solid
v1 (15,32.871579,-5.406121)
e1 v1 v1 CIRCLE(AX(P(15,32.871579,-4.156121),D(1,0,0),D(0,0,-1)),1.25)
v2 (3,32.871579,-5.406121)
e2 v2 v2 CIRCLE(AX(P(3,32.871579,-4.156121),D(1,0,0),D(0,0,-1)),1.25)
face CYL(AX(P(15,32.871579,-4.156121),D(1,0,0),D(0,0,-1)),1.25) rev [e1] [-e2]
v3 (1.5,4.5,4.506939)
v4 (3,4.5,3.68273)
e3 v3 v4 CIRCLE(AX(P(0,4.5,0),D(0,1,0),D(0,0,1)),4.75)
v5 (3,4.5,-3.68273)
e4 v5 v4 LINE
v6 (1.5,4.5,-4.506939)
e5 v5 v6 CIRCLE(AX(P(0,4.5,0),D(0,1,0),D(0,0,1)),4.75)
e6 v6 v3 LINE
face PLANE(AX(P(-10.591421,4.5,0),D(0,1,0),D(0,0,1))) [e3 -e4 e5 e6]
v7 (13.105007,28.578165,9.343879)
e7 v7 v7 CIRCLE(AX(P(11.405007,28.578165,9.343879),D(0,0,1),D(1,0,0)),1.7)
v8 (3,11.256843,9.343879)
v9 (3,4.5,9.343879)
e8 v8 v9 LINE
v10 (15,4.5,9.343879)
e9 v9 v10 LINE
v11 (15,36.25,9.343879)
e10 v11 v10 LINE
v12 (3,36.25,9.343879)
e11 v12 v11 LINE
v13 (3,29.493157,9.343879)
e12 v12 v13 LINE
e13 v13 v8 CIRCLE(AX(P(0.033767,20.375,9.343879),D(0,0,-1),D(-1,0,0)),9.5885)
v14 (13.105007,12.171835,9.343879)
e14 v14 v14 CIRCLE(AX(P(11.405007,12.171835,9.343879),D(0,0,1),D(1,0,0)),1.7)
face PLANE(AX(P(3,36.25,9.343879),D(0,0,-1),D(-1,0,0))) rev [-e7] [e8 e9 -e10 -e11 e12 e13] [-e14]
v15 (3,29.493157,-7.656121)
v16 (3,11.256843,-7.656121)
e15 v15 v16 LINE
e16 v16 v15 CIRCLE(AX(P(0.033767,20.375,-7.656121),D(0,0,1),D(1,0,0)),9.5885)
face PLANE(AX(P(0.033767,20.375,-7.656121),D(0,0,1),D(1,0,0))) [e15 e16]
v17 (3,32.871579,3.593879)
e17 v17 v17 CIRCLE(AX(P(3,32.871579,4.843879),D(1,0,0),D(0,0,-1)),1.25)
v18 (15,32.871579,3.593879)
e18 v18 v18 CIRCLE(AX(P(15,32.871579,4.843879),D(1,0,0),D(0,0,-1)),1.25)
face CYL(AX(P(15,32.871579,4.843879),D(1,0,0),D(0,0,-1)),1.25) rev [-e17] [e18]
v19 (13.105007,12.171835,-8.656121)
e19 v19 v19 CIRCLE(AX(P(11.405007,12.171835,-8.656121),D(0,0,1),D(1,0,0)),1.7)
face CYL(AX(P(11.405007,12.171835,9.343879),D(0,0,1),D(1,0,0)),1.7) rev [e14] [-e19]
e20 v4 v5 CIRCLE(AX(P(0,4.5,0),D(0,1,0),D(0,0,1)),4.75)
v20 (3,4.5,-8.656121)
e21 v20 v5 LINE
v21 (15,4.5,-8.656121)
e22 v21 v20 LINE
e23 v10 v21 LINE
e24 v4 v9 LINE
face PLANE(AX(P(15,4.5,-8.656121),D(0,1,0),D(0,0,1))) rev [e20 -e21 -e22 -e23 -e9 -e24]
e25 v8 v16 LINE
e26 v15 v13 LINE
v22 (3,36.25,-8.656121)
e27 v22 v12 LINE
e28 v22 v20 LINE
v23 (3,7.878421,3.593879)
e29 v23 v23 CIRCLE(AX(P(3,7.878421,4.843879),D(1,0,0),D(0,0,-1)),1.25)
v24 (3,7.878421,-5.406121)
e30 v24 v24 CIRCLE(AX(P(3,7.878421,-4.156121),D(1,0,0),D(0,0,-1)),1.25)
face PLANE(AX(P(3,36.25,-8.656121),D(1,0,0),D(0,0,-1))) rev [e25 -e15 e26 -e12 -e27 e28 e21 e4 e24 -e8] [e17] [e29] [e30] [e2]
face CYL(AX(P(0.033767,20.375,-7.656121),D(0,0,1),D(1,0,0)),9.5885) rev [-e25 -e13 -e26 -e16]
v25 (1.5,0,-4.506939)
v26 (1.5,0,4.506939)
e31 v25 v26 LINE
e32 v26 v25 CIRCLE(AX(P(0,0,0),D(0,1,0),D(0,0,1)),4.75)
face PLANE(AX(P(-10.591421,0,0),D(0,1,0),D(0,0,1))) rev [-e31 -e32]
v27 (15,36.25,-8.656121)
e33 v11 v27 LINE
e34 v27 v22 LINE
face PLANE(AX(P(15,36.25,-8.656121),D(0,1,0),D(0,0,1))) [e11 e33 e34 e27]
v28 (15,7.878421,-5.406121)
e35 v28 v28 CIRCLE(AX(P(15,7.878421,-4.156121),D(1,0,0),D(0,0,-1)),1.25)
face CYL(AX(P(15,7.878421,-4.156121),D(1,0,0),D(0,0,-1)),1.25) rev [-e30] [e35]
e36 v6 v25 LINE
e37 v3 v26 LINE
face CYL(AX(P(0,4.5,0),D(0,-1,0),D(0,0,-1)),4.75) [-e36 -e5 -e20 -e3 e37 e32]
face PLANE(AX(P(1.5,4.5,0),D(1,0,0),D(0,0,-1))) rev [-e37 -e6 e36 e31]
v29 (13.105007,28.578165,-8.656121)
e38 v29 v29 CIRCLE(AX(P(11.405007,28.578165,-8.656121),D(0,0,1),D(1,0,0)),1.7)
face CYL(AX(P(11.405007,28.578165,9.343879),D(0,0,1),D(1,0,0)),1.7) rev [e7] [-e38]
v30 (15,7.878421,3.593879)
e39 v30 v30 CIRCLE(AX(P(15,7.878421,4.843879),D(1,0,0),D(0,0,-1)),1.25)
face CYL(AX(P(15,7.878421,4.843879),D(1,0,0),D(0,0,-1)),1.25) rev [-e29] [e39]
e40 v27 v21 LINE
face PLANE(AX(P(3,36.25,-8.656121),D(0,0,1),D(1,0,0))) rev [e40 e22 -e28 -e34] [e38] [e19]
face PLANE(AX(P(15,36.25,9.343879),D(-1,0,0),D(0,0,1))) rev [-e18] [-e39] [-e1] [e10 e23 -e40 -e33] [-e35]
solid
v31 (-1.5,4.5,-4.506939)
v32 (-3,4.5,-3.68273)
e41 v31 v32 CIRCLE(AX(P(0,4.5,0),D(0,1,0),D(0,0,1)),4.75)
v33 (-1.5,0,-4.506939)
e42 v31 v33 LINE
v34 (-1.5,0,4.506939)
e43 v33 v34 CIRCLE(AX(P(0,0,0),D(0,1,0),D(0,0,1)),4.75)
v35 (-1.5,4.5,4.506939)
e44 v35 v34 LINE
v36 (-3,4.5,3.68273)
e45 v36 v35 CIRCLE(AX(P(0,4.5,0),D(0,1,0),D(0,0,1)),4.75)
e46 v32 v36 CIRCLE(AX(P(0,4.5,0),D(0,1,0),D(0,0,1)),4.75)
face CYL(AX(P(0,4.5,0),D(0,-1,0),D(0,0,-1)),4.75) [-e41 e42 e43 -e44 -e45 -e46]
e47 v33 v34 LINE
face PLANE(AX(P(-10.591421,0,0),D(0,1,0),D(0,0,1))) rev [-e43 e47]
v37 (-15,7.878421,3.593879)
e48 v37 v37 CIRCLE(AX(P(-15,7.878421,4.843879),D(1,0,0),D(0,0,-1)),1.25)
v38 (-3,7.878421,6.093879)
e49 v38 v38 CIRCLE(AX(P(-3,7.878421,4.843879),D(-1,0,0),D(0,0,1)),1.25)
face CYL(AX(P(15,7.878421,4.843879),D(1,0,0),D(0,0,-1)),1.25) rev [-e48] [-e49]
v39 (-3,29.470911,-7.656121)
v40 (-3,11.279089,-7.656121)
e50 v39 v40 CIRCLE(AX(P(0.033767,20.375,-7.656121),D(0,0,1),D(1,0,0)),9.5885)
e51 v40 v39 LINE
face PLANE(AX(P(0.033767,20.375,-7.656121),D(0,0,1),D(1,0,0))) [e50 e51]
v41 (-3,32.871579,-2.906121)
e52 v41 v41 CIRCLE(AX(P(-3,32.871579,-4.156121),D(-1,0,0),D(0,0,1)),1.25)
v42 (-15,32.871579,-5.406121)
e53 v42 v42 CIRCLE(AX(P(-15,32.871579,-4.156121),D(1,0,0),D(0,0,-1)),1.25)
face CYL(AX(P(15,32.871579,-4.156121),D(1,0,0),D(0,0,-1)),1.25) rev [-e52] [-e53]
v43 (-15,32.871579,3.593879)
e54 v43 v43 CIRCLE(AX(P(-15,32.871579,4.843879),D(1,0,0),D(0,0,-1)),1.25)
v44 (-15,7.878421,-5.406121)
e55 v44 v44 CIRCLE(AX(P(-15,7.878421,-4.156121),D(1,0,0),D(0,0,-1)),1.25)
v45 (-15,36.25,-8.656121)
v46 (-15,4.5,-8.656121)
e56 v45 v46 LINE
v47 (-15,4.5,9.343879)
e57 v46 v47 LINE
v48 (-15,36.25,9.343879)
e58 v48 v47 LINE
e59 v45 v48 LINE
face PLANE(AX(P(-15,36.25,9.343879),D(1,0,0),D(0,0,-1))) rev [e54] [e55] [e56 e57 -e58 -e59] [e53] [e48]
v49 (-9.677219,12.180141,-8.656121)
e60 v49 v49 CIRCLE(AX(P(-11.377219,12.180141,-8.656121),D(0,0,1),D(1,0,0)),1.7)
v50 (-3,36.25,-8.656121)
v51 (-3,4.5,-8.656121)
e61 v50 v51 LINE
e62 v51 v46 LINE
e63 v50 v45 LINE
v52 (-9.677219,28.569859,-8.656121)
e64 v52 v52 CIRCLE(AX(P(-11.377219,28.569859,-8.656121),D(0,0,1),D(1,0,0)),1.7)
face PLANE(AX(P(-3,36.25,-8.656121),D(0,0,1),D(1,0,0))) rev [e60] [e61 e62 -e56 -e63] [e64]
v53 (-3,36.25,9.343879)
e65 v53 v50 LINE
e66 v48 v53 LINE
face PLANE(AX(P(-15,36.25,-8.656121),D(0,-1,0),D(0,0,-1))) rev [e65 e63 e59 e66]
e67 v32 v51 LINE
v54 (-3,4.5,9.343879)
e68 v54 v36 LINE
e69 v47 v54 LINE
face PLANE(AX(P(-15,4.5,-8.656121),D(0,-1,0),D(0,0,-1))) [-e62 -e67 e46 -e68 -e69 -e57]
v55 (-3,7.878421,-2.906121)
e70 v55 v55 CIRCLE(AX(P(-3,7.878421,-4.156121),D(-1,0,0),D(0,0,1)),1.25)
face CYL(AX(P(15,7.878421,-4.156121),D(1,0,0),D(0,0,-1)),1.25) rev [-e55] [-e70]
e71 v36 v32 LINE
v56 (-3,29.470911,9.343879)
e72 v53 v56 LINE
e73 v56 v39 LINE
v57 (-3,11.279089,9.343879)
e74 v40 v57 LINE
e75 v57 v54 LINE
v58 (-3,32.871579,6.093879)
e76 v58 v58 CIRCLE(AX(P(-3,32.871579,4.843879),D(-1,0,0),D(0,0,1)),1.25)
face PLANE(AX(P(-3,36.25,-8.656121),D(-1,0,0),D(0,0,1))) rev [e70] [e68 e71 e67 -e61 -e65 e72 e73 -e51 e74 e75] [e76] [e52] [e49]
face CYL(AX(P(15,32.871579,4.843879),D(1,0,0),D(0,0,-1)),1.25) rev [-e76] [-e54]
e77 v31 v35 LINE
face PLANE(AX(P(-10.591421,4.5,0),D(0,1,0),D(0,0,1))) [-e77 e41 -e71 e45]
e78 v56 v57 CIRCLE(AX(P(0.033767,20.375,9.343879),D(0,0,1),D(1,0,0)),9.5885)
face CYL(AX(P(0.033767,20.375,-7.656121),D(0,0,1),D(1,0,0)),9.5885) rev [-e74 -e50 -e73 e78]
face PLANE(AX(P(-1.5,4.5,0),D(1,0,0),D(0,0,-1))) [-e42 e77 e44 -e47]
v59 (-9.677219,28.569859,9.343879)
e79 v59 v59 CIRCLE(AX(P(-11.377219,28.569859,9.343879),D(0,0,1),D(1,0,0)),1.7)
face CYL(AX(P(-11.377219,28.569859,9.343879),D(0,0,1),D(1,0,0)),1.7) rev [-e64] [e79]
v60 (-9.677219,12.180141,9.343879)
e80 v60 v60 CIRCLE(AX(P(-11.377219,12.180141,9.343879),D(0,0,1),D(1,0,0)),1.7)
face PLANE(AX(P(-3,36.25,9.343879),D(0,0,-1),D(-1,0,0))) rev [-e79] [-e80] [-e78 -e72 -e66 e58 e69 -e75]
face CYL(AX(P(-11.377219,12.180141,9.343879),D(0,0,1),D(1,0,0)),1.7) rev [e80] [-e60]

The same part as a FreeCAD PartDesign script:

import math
import FreeCAD as App
import Part
import Sketcher
from FreeCAD import Vector


def add_polygon(sketch, points):
    """Adds a closed chain of lines whose ends are joined by coincident constraints."""
    first, n = sketch.GeometryCount, len(points)
    for a, b in zip(points, points[1:] + points[:1]):
        sketch.addGeometry(Part.LineSegment(App.Vector(*a, 0), App.Vector(*b, 0)), False)
    for i in range(n):
        sketch.addConstraint(Sketcher.Constraint("Coincident", first + i, 2, first + (i + 1) % n, 1))

doc = App.newDocument("Part")
body = doc.addObject("PartDesign::Body", "Body")

sketch1 = body.newObject("Sketcher::SketchObject", "Sketch")
sketch1.AttachmentSupport = (doc.getObject("XZ_Plane"), [""])
sketch1.MapMode = "FlatFace"
sketch1.AttachmentOffset = App.Placement(Vector(0, 0, -4.5), App.Rotation())
add_polygon(sketch1, [(-3, 9.343879), (-3, -8.656121), (-15, -8.656121), (-15, 9.343879)])
sketch1.addConstraint(Sketcher.Constraint("Vertical", 0))
sketch1.addConstraint(Sketcher.Constraint("Horizontal", 1))
sketch1.addConstraint(Sketcher.Constraint("Vertical", 2))
sketch1.addConstraint(Sketcher.Constraint("Horizontal", 3))
sketch1.addConstraint(Sketcher.Constraint("DistanceX", 1, 2, 1, 1, 12.0))
sketch1.addConstraint(Sketcher.Constraint("DistanceY", 0, 2, 0, 1, 18.0))
sketch1.addConstraint(Sketcher.Constraint("DistanceX", 0, 2, -1, 1, 3.0))
sketch1.addConstraint(Sketcher.Constraint("DistanceY", 0, 2, -1, 1, 8.656121))
pad1 = body.newObject("PartDesign::Pad", "Pad")
pad1.Profile = sketch1
pad1.Length = 31.75
pad1.Reversed = True
body2 = doc.addObject("PartDesign::Body", "Body001")

sketch2 = body2.newObject("Sketcher::SketchObject", "Sketch001")
sketch2.AttachmentSupport = (doc.getObject("XZ_Plane001"), [""])
sketch2.MapMode = "FlatFace"
sketch2.AttachmentOffset = App.Placement(Vector(0, 0, -4.5), App.Rotation())
add_polygon(sketch2, [(15, 9.343879), (15, -8.656121), (3, -8.656121), (3, 9.343879)])
sketch2.addConstraint(Sketcher.Constraint("Vertical", 0))
sketch2.addConstraint(Sketcher.Constraint("Horizontal", 1))
sketch2.addConstraint(Sketcher.Constraint("Vertical", 2))
sketch2.addConstraint(Sketcher.Constraint("Horizontal", 3))
sketch2.addConstraint(Sketcher.Constraint("DistanceX", 1, 2, 1, 1, 12.0))
sketch2.addConstraint(Sketcher.Constraint("DistanceY", 0, 2, 0, 1, 18.0))
sketch2.addConstraint(Sketcher.Constraint("DistanceX", -1, 1, 0, 2, 15.0))
sketch2.addConstraint(Sketcher.Constraint("DistanceY", 0, 2, -1, 1, 8.656121))
pad2 = body2.newObject("PartDesign::Pad", "Pad001")
pad2.Profile = sketch2
pad2.Length = 31.75
pad2.Reversed = True
body.AllowCompound = True
doc.recompute()

boolean = body.newObject("PartDesign::Boolean", "Boolean")
boolean.Type = "Fuse"
boolean.addObjects([body2])

sketch3 = body.newObject("Sketcher::SketchObject", "Sketch002")
sketch3.AttachmentSupport = (doc.getObject("XZ_Plane"), [""])
sketch3.MapMode = "FlatFace"
sketch3.addGeometry(Part.ArcOfCircle(Part.Circle(Vector(0, 0, 0), Vector(0, 0, 1), 4.75), math.radians(-71.59152), math.radians(0)), False)
sketch3.addGeometry(Part.LineSegment(Vector(1.5, -4.506939, 0), Vector(1.5, 4.506939, 0)), False)
sketch3.addGeometry(Part.ArcOfCircle(Part.Circle(Vector(0, 0, 0), Vector(0, 0, 1), 4.75), math.radians(0), math.radians(71.59152)), False)
sketch3.addGeometry(Part.LineSegment(Vector(-1.5, 4.506939, 0), Vector(-1.5, -4.506939, 0)), False)
sketch3.addGeometry(Part.ArcOfCircle(Part.Circle(Vector(0, 0, 0), Vector(0, 0, 1), 4.75), math.radians(108.40848), math.radians(251.59152)), False)
sketch3.addConstraint(Sketcher.Constraint("Coincident", 0, 1, 1, 1))
sketch3.addConstraint(Sketcher.Constraint("Coincident", 1, 2, 2, 2))
sketch3.addConstraint(Sketcher.Constraint("Tangent", 2, 1, 0, 2))
sketch3.addConstraint(Sketcher.Constraint("Coincident", 3, 1, 4, 1))
sketch3.addConstraint(Sketcher.Constraint("Coincident", 4, 2, 3, 2))
sketch3.addConstraint(Sketcher.Constraint("Vertical", 1))
sketch3.addConstraint(Sketcher.Constraint("Vertical", 3))
sketch3.addConstraint(Sketcher.Constraint("Coincident", 0, 3, -1, 1))
sketch3.addConstraint(Sketcher.Constraint("Coincident", 4, 3, -1, 1))
sketch3.addConstraint(Sketcher.Constraint("Equal", 0, 2))
sketch3.addConstraint(Sketcher.Constraint("Equal", 2, 4))
sketch3.addConstraint(Sketcher.Constraint("PointOnObject", 2, 1, -1))
sketch3.addConstraint(Sketcher.Constraint("Horizontal", 1, 2, 3, 1))
sketch3.addConstraint(Sketcher.Constraint("Radius", 0, 4.75))
sketch3.addConstraint(Sketcher.Constraint("DistanceX", 3, 1, 1, 2, 3.0))
pad3 = body.newObject("PartDesign::Pad", "Pad002")
pad3.Profile = sketch3
pad3.Length = 4.5
pad3.Reversed = True

sketch4 = body.newObject("Sketcher::SketchObject", "Sketch003")
sketch4.AttachmentSupport = (doc.getObject("XY_Plane"), [""])
sketch4.MapMode = "FlatFace"
sketch4.AttachmentOffset = App.Placement(Vector(0, 0, 9.343879), App.Rotation())
sketch4.addGeometry(Part.Circle(Vector(0.033767, 20.375, 0), Vector(0, 0, 1), 9.5885), False)
sketch4.addConstraint(Sketcher.Constraint("Diameter", 0, 19.177))
sketch4.addConstraint(Sketcher.Constraint("DistanceY", -1, 1, 0, 3, 20.375))
sketch4.addConstraint(Sketcher.Constraint("DistanceX", -1, 1, 0, 3, 0.033767))
pocket1 = body.newObject("PartDesign::Pocket", "Pocket")
pocket1.Profile = sketch4
pocket1.Length = 17

sketch5 = body.newObject("Sketcher::SketchObject", "Sketch004")
sketch5.AttachmentSupport = (doc.getObject("YZ_Plane"), [""])
sketch5.MapMode = "FlatFace"
sketch5.AttachmentOffset = App.Placement(Vector(0, 0, 15), App.Rotation())
sketch5.addGeometry(Part.Circle(Vector(32.871579, 4.843879, 0), Vector(0, 0, 1), 1.25), False)
sketch5.addGeometry(Part.Circle(Vector(32.871579, -4.156121, 0), Vector(0, 0, 1), 1.25), False)
sketch5.addGeometry(Part.Circle(Vector(7.878421, 4.843879, 0), Vector(0, 0, 1), 1.25), False)
sketch5.addGeometry(Part.Circle(Vector(7.878421, -4.156121, 0), Vector(0, 0, 1), 1.25), False)
sketch5.addConstraint(Sketcher.Constraint("Equal", 0, 1))
sketch5.addConstraint(Sketcher.Constraint("Equal", 1, 2))
sketch5.addConstraint(Sketcher.Constraint("Equal", 2, 3))
sketch5.addConstraint(Sketcher.Constraint("Horizontal", 0, 3, 2, 3))
sketch5.addConstraint(Sketcher.Constraint("Horizontal", 1, 3, 3, 3))
sketch5.addConstraint(Sketcher.Constraint("Vertical", 0, 3, 1, 3))
sketch5.addConstraint(Sketcher.Constraint("Vertical", 2, 3, 3, 3))
sketch5.addConstraint(Sketcher.Constraint("Diameter", 0, 2.5))
sketch5.addConstraint(Sketcher.Constraint("DistanceY", 1, 3, 0, 3, 9.0))
sketch5.addConstraint(Sketcher.Constraint("DistanceX", -1, 1, 0, 3, 32.871579))
sketch5.addConstraint(Sketcher.Constraint("DistanceY", -1, 1, 0, 3, 4.843879))
sketch5.addConstraint(Sketcher.Constraint("DistanceX", -1, 1, 2, 3, 7.878421))
doc.recompute()
hole = body.newObject("PartDesign::Hole", "Hole")
hole.Profile = sketch5
hole.ThreadType = "None"
hole.Diameter = 2.5
hole.DepthType = "ThroughAll"

sketch6 = body.newObject("Sketcher::SketchObject", "Sketch005")
sketch6.AttachmentSupport = (doc.getObject("XY_Plane"), [""])
sketch6.MapMode = "FlatFace"
sketch6.AttachmentOffset = App.Placement(Vector(0, 0, 9.343879), App.Rotation())
sketch6.addGeometry(Part.Circle(Vector(-11.377219, 28.569859, 0), Vector(0, 0, 1), 1.7), False)
sketch6.addGeometry(Part.Circle(Vector(-11.377219, 12.180141, 0), Vector(0, 0, 1), 1.7), False)
sketch6.addGeometry(Part.Circle(Vector(11.405007, 12.171835, 0), Vector(0, 0, 1), 1.7), False)
sketch6.addGeometry(Part.Circle(Vector(11.405007, 28.578165, 0), Vector(0, 0, 1), 1.7), False)
sketch6.addConstraint(Sketcher.Constraint("Equal", 0, 1))
sketch6.addConstraint(Sketcher.Constraint("Equal", 1, 2))
sketch6.addConstraint(Sketcher.Constraint("Equal", 2, 3))
sketch6.addConstraint(Sketcher.Constraint("Vertical", 0, 3, 1, 3))
sketch6.addConstraint(Sketcher.Constraint("Vertical", 2, 3, 3, 3))
sketch6.addConstraint(Sketcher.Constraint("Diameter", 0, 3.4))
sketch6.addConstraint(Sketcher.Constraint("DistanceX", 0, 3, -1, 1, 11.377219))
sketch6.addConstraint(Sketcher.Constraint("DistanceY", -1, 1, 0, 3, 28.569859))
sketch6.addConstraint(Sketcher.Constraint("DistanceY", -1, 1, 1, 3, 12.180141))
sketch6.addConstraint(Sketcher.Constraint("DistanceY", 2, 3, 3, 3, 16.406331))
sketch6.addConstraint(Sketcher.Constraint("DistanceX", -1, 1, 2, 3, 11.405007))
sketch6.addConstraint(Sketcher.Constraint("DistanceY", -1, 1, 2, 3, 12.171835))
doc.recompute()
hole2 = body.newObject("PartDesign::Hole", "Hole001")
hole2.Profile = sketch6
hole2.ThreadType = "None"
hole2.Diameter = 3.4
hole2.DepthType = "ThroughAll"

doc.recompute()
